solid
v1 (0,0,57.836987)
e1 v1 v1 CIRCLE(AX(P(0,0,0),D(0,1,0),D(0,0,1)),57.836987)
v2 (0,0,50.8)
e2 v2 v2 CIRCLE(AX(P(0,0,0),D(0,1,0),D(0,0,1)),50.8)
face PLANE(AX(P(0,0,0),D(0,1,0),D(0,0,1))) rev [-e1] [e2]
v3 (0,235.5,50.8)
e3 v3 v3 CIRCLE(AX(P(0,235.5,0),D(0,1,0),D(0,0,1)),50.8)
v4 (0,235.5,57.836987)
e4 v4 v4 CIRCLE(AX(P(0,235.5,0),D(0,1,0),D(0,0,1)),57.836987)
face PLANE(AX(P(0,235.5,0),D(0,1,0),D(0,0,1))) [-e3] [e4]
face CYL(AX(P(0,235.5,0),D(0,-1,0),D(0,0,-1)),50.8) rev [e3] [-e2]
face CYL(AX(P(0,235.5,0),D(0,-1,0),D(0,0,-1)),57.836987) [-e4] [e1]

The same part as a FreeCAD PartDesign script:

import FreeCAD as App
import Part
import Sketcher

V = App.Vector

doc = App.newDocument("Part")
body = doc.addObject("PartDesign::Body", "Body")

sketch1 = body.newObject("Sketcher::SketchObject", "Sketch")
sketch1.AttachmentSupport = (doc.getObject("XZ_Plane"), [""])
sketch1.MapMode = "FlatFace"
sketch1.addGeometry([
    Part.Circle(V(0, 0, 0), V(0, 0, 1), 58),
    Part.Circle(V(0, 0, 0), V(0, 0, 1), 51),
], False)
sketch1.addConstraint([
    Sketcher.Constraint("Coincident", 0, 3, -1, 1),
    Sketcher.Constraint("Coincident", 1, 3, -1, 1),
    Sketcher.Constraint("Diameter", 1, 101.6),
    Sketcher.Constraint("Diameter", 0, 115.673973),
])
pad1 = body.newObject("PartDesign::Pad", "Pad")
pad1.Profile = sketch1
pad1.Length = 235.5
pad1.Reversed = True

doc.recompute()
